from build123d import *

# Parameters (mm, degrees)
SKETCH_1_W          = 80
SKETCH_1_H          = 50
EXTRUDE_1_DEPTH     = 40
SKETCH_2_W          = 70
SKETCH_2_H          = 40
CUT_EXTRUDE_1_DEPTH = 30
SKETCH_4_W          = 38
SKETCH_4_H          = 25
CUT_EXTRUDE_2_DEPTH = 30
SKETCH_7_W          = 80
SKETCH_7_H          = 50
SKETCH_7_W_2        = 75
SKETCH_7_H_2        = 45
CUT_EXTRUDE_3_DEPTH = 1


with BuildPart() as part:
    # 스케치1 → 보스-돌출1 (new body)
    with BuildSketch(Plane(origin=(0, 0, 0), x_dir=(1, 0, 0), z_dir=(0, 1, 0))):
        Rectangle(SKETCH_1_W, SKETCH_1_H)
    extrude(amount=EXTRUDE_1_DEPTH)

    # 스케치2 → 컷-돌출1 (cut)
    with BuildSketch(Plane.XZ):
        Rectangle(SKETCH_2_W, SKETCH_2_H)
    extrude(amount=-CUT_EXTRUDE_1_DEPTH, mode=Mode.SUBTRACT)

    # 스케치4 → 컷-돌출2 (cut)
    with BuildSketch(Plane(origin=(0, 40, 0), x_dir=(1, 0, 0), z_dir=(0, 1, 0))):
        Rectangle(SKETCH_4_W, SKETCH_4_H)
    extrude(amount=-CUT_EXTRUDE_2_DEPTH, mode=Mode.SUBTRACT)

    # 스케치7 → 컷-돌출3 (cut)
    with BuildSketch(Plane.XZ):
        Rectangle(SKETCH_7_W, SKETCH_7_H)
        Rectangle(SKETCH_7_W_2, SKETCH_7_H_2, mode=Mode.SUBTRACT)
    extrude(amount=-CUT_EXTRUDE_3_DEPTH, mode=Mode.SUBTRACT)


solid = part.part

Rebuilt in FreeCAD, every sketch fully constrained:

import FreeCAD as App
import Part
import Sketcher

V = App.Vector
Q = App.Units.Quantity

doc = App.newDocument("Part")
body = doc.addObject("PartDesign::Body", "Body")

# Sketch on XZ plane
sketch1 = body.newObject("Sketcher::SketchObject", "Sketch")
sketch1.AttachmentSupport = (doc.getObject("XZ_Plane"), [""])
sketch1.MapMode = "FlatFace"
sketch1.addGeometry([
    Part.LineSegment(V(-40, -25, 0), V(-40, 25, 0)),
    Part.LineSegment(V(-40, 25, 0), V(40, 25, 0)),
    Part.LineSegment(V(40, 25, 0), V(40, -25, 0)),
    Part.LineSegment(V(40, -25, 0), V(-40, -25, 0)),
], False)
sketch1.addConstraint([
    Sketcher.Constraint("Coincident", 0, 2, 1, 1),
    Sketcher.Constraint("Coincident", 1, 2, 2, 1),
    Sketcher.Constraint("Coincident", 2, 2, 3, 1),
    Sketcher.Constraint("Coincident", 3, 2, 0, 1),
    Sketcher.Constraint("Vertical", 0),
    Sketcher.Constraint("Horizontal", 1),
    Sketcher.Constraint("Vertical", 2),
    Sketcher.Constraint("Horizontal", 3),
    Sketcher.Constraint("Symmetric", 0, 2, 2, 2, -1, 1),
    Sketcher.Constraint("DistanceX", 1, 1, 1, 2, Q("80 mm")),
    Sketcher.Constraint("DistanceY", 0, 1, 0, 2, Q("50 mm")),
])
pad1 = body.newObject("PartDesign::Pad", "Pad")
pad1.Profile = sketch1
pad1.Length = 40
pad1.Reversed = True

# Sketch on XZ plane
sketch2 = body.newObject("Sketcher::SketchObject", "Sketch001")
sketch2.AttachmentSupport = (doc.getObject("XZ_Plane"), [""])
sketch2.MapMode = "FlatFace"
sketch2.addGeometry([
    Part.LineSegment(V(-35, 20, 0), V(-35, -20, 0)),
    Part.LineSegment(V(-35, -20, 0), V(35, -20, 0)),
    Part.LineSegment(V(35, -20, 0), V(35, 20, 0)),
    Part.LineSegment(V(35, 20, 0), V(-35, 20, 0)),
], False)
sketch2.addConstraint([
    Sketcher.Constraint("Coincident", 0, 2, 1, 1),
    Sketcher.Constraint("Coincident", 1, 2, 2, 1),
    Sketcher.Constraint("Coincident", 2, 2, 3, 1),
    Sketcher.Constraint("Coincident", 3, 2, 0, 1),
    Sketcher.Constraint("Vertical", 0),
    Sketcher.Constraint("Horizontal", 1),
    Sketcher.Constraint("Vertical", 2),
    Sketcher.Constraint("Horizontal", 3),
    Sketcher.Constraint("Symmetric", 0, 2, 2, 2, -1, 1),
    Sketcher.Constraint("DistanceX", 1, 1, 1, 2, Q("70 mm")),
    Sketcher.Constraint("DistanceY", 0, 2, 0, 1, Q("40 mm")),
])
pocket1 = body.newObject("PartDesign::Pocket", "Pocket")
pocket1.Profile = sketch2
pocket1.Length = 30

# Sketch on XZ plane
sketch3 = body.newObject("Sketcher::SketchObject", "Sketch002")
sketch3.AttachmentSupport = (doc.getObject("XZ_Plane"), [""])
sketch3.MapMode = "FlatFace"
sketch3.AttachmentOffset = App.Placement(V(0, 0, -40), App.Rotation())
sketch3.addGeometry([
    Part.LineSegment(V(-19, -12, 0), V(-19, 12, 0)),
    Part.LineSegment(V(-19, 12, 0), V(19, 12, 0)),
    Part.LineSegment(V(19, 12, 0), V(19, -12, 0)),
    Part.LineSegment(V(19, -12, 0), V(-19, -12, 0)),
], False)
sketch3.addConstraint([
    Sketcher.Constraint("Coincident", 0, 2, 1, 1),
    Sketcher.Constraint("Coincident", 1, 2, 2, 1),
    Sketcher.Constraint("Coincident", 2, 2, 3, 1),
    Sketcher.Constraint("Coincident", 3, 2, 0, 1),
    Sketcher.Constraint("Vertical", 0),
    Sketcher.Constraint("Horizontal", 1),
    Sketcher.Constraint("Vertical", 2),
    Sketcher.Constraint("Horizontal", 3),
    Sketcher.Constraint("Symmetric", 0, 2, 2, 2, -1, 1),
    Sketcher.Constraint("DistanceX", 1, 1, 1, 2, Q("38 mm")),
    Sketcher.Constraint("DistanceY", 0, 1, 0, 2, Q("25 mm")),
])
pocket2 = body.newObject("PartDesign::Pocket", "Pocket001")
pocket2.Profile = sketch3
pocket2.Length = 30
pocket2.Reversed = True

# Sketch on XZ plane
sketch4 = body.newObject("Sketcher::SketchObject", "Sketch003")
sketch4.AttachmentSupport = (doc.getObject("XZ_Plane"), [""])
sketch4.MapMode = "FlatFace"
sketch4.addGeometry([
    Part.LineSegment(V(-40, 25, 0), V(-40, -25, 0)),  # 0
    Part.LineSegment(V(-40, -25, 0), V(40, -25, 0)),  # 1
    Part.LineSegment(V(40, -25, 0), V(40, 25, 0)),  # 2
    Part.LineSegment(V(40, 25, 0), V(-40, 25, 0)),  # 3
    Part.LineSegment(V(38, -22, 0), V(-38, -22, 0)),  # 4
    Part.LineSegment(V(-38, -22, 0), V(-38, 22, 0)),  # 5
    Part.LineSegment(V(-38, 22, 0), V(38, 22, 0)),  # 6
    Part.LineSegment(V(38, 22, 0), V(38, -22, 0)),  # 7
], False)
sketch4.addConstraint([
    Sketcher.Constraint("Coincident", 0, 2, 1, 1),
    Sketcher.Constraint("Coincident", 1, 2, 2, 1),
    Sketcher.Constraint("Coincident", 2, 2, 3, 1),
    Sketcher.Constraint("Coincident", 3, 2, 0, 1),
    Sketcher.Constraint("Coincident", 4, 2, 5, 1),
    Sketcher.Constraint("Coincident", 5, 2, 6, 1),
    Sketcher.Constraint("Coincident", 6, 2, 7, 1),
    Sketcher.Constraint("Coincident", 7, 2, 4, 1),
    Sketcher.Constraint("Vertical", 0),
    Sketcher.Constraint("Horizontal", 1),
    Sketcher.Constraint("Vertical", 2),
    Sketcher.Constraint("Horizontal", 3),
    Sketcher.Constraint("Horizontal", 4),
    Sketcher.Constraint("Vertical", 5),
    Sketcher.Constraint("Horizontal", 6),
    Sketcher.Constraint("Vertical", 7),
    Sketcher.Constraint("Symmetric", 0, 2, 2, 2, -1, 1),
    Sketcher.Constraint("Symmetric", 4, 2, 6, 2, -1, 1),
    Sketcher.Constraint("DistanceX", 1, 1, 1, 2, Q("80 mm")),
    Sketcher.Constraint("DistanceX", 4, 2, 4, 1, Q("75 mm")),
    Sketcher.Constraint("DistanceY", 0, 2, 0, 1, Q("50 mm")),
    Sketcher.Constraint("DistanceY", 5, 1, 5, 2, Q("45 mm")),
])
pocket3 = body.newObject("PartDesign::Pocket", "Pocket002")
pocket3.Profile = sketch4
pocket3.Length = 1

doc.recompute()
